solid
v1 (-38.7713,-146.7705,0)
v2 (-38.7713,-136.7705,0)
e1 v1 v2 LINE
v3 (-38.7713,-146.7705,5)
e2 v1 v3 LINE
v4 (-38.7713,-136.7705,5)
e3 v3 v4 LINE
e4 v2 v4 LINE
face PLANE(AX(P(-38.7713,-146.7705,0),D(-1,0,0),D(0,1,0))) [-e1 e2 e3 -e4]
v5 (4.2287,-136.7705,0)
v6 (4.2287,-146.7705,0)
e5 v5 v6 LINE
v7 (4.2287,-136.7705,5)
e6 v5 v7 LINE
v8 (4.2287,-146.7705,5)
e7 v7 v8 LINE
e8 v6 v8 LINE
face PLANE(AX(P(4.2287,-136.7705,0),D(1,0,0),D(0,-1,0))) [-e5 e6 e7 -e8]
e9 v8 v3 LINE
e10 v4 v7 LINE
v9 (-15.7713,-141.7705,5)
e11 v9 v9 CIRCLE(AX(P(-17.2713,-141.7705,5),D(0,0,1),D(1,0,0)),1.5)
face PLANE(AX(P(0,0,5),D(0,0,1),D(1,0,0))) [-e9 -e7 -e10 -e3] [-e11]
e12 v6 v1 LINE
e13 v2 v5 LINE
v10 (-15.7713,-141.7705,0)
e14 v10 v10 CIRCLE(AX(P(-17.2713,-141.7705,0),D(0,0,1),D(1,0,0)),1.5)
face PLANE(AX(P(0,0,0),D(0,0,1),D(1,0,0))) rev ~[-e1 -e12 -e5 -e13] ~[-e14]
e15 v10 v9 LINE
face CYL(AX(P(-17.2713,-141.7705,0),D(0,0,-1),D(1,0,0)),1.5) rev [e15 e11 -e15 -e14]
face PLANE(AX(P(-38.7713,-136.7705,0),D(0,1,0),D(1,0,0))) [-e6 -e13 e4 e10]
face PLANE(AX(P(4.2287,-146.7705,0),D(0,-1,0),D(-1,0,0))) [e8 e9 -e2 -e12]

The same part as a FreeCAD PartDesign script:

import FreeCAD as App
import Part
import Sketcher

doc = App.newDocument("Part")
body = doc.addObject("PartDesign::Body", "Body")

sketch1 = body.newObject("Sketcher::SketchObject", "Sketch")
sketch1.AttachmentSupport = (doc.getObject("XY_Plane"), [""])
sketch1.MapMode = "FlatFace"
sketch1.addGeometry([
    Part.LineSegment(App.Vector(-38.8, -136.8, 0), App.Vector(-38.8, -146.8, 0)),
    Part.LineSegment(App.Vector(-38.8, -146.8, 0), App.Vector(4.2, -146.8, 0)),
    Part.LineSegment(App.Vector(4.2, -146.8, 0), App.Vector(4.2, -136.8, 0)),
    Part.LineSegment(App.Vector(4.2, -136.8, 0), App.Vector(-38.8, -136.8, 0)),
    Part.Circle(App.Vector(-17.3, -141.8, 0), App.Vector(0, 0, 1), 1.5),
], False)
sketch1.addConstraint([
    Sketcher.Constraint("Coincident", 0, 2, 1, 1),
    Sketcher.Constraint("Coincident", 1, 2, 2, 1),
    Sketcher.Constraint("Coincident", 2, 2, 3, 1),
    Sketcher.Constraint("Coincident", 3, 2, 0, 1),
    Sketcher.Constraint("Vertical", 0),
    Sketcher.Constraint("Horizontal", 1),
    Sketcher.Constraint("Vertical", 2),
    Sketcher.Constraint("Horizontal", 3),
    Sketcher.Constraint("Diameter", 4, 3.0),
    Sketcher.Constraint("DistanceY", 0, 2, 4, 3, 5.0),
    Sketcher.Constraint("DistanceY", 4, 3, 2, 2, 5.0),
    Sketcher.Constraint("DistanceX", 0, 2, 4, 3, 21.5),
    Sketcher.Constraint("DistanceX", 4, 3, 1, 2, 21.5),
    Sketcher.Constraint("DistanceX", 4, 3, -1, 1, 17.2713),
    Sketcher.Constraint("DistanceY", 4, 3, -1, 1, 141.7705),
])
pad1 = body.newObject("PartDesign::Pad", "Pad")
pad1.Profile = sketch1
pad1.Length = 5

doc.recompute()
